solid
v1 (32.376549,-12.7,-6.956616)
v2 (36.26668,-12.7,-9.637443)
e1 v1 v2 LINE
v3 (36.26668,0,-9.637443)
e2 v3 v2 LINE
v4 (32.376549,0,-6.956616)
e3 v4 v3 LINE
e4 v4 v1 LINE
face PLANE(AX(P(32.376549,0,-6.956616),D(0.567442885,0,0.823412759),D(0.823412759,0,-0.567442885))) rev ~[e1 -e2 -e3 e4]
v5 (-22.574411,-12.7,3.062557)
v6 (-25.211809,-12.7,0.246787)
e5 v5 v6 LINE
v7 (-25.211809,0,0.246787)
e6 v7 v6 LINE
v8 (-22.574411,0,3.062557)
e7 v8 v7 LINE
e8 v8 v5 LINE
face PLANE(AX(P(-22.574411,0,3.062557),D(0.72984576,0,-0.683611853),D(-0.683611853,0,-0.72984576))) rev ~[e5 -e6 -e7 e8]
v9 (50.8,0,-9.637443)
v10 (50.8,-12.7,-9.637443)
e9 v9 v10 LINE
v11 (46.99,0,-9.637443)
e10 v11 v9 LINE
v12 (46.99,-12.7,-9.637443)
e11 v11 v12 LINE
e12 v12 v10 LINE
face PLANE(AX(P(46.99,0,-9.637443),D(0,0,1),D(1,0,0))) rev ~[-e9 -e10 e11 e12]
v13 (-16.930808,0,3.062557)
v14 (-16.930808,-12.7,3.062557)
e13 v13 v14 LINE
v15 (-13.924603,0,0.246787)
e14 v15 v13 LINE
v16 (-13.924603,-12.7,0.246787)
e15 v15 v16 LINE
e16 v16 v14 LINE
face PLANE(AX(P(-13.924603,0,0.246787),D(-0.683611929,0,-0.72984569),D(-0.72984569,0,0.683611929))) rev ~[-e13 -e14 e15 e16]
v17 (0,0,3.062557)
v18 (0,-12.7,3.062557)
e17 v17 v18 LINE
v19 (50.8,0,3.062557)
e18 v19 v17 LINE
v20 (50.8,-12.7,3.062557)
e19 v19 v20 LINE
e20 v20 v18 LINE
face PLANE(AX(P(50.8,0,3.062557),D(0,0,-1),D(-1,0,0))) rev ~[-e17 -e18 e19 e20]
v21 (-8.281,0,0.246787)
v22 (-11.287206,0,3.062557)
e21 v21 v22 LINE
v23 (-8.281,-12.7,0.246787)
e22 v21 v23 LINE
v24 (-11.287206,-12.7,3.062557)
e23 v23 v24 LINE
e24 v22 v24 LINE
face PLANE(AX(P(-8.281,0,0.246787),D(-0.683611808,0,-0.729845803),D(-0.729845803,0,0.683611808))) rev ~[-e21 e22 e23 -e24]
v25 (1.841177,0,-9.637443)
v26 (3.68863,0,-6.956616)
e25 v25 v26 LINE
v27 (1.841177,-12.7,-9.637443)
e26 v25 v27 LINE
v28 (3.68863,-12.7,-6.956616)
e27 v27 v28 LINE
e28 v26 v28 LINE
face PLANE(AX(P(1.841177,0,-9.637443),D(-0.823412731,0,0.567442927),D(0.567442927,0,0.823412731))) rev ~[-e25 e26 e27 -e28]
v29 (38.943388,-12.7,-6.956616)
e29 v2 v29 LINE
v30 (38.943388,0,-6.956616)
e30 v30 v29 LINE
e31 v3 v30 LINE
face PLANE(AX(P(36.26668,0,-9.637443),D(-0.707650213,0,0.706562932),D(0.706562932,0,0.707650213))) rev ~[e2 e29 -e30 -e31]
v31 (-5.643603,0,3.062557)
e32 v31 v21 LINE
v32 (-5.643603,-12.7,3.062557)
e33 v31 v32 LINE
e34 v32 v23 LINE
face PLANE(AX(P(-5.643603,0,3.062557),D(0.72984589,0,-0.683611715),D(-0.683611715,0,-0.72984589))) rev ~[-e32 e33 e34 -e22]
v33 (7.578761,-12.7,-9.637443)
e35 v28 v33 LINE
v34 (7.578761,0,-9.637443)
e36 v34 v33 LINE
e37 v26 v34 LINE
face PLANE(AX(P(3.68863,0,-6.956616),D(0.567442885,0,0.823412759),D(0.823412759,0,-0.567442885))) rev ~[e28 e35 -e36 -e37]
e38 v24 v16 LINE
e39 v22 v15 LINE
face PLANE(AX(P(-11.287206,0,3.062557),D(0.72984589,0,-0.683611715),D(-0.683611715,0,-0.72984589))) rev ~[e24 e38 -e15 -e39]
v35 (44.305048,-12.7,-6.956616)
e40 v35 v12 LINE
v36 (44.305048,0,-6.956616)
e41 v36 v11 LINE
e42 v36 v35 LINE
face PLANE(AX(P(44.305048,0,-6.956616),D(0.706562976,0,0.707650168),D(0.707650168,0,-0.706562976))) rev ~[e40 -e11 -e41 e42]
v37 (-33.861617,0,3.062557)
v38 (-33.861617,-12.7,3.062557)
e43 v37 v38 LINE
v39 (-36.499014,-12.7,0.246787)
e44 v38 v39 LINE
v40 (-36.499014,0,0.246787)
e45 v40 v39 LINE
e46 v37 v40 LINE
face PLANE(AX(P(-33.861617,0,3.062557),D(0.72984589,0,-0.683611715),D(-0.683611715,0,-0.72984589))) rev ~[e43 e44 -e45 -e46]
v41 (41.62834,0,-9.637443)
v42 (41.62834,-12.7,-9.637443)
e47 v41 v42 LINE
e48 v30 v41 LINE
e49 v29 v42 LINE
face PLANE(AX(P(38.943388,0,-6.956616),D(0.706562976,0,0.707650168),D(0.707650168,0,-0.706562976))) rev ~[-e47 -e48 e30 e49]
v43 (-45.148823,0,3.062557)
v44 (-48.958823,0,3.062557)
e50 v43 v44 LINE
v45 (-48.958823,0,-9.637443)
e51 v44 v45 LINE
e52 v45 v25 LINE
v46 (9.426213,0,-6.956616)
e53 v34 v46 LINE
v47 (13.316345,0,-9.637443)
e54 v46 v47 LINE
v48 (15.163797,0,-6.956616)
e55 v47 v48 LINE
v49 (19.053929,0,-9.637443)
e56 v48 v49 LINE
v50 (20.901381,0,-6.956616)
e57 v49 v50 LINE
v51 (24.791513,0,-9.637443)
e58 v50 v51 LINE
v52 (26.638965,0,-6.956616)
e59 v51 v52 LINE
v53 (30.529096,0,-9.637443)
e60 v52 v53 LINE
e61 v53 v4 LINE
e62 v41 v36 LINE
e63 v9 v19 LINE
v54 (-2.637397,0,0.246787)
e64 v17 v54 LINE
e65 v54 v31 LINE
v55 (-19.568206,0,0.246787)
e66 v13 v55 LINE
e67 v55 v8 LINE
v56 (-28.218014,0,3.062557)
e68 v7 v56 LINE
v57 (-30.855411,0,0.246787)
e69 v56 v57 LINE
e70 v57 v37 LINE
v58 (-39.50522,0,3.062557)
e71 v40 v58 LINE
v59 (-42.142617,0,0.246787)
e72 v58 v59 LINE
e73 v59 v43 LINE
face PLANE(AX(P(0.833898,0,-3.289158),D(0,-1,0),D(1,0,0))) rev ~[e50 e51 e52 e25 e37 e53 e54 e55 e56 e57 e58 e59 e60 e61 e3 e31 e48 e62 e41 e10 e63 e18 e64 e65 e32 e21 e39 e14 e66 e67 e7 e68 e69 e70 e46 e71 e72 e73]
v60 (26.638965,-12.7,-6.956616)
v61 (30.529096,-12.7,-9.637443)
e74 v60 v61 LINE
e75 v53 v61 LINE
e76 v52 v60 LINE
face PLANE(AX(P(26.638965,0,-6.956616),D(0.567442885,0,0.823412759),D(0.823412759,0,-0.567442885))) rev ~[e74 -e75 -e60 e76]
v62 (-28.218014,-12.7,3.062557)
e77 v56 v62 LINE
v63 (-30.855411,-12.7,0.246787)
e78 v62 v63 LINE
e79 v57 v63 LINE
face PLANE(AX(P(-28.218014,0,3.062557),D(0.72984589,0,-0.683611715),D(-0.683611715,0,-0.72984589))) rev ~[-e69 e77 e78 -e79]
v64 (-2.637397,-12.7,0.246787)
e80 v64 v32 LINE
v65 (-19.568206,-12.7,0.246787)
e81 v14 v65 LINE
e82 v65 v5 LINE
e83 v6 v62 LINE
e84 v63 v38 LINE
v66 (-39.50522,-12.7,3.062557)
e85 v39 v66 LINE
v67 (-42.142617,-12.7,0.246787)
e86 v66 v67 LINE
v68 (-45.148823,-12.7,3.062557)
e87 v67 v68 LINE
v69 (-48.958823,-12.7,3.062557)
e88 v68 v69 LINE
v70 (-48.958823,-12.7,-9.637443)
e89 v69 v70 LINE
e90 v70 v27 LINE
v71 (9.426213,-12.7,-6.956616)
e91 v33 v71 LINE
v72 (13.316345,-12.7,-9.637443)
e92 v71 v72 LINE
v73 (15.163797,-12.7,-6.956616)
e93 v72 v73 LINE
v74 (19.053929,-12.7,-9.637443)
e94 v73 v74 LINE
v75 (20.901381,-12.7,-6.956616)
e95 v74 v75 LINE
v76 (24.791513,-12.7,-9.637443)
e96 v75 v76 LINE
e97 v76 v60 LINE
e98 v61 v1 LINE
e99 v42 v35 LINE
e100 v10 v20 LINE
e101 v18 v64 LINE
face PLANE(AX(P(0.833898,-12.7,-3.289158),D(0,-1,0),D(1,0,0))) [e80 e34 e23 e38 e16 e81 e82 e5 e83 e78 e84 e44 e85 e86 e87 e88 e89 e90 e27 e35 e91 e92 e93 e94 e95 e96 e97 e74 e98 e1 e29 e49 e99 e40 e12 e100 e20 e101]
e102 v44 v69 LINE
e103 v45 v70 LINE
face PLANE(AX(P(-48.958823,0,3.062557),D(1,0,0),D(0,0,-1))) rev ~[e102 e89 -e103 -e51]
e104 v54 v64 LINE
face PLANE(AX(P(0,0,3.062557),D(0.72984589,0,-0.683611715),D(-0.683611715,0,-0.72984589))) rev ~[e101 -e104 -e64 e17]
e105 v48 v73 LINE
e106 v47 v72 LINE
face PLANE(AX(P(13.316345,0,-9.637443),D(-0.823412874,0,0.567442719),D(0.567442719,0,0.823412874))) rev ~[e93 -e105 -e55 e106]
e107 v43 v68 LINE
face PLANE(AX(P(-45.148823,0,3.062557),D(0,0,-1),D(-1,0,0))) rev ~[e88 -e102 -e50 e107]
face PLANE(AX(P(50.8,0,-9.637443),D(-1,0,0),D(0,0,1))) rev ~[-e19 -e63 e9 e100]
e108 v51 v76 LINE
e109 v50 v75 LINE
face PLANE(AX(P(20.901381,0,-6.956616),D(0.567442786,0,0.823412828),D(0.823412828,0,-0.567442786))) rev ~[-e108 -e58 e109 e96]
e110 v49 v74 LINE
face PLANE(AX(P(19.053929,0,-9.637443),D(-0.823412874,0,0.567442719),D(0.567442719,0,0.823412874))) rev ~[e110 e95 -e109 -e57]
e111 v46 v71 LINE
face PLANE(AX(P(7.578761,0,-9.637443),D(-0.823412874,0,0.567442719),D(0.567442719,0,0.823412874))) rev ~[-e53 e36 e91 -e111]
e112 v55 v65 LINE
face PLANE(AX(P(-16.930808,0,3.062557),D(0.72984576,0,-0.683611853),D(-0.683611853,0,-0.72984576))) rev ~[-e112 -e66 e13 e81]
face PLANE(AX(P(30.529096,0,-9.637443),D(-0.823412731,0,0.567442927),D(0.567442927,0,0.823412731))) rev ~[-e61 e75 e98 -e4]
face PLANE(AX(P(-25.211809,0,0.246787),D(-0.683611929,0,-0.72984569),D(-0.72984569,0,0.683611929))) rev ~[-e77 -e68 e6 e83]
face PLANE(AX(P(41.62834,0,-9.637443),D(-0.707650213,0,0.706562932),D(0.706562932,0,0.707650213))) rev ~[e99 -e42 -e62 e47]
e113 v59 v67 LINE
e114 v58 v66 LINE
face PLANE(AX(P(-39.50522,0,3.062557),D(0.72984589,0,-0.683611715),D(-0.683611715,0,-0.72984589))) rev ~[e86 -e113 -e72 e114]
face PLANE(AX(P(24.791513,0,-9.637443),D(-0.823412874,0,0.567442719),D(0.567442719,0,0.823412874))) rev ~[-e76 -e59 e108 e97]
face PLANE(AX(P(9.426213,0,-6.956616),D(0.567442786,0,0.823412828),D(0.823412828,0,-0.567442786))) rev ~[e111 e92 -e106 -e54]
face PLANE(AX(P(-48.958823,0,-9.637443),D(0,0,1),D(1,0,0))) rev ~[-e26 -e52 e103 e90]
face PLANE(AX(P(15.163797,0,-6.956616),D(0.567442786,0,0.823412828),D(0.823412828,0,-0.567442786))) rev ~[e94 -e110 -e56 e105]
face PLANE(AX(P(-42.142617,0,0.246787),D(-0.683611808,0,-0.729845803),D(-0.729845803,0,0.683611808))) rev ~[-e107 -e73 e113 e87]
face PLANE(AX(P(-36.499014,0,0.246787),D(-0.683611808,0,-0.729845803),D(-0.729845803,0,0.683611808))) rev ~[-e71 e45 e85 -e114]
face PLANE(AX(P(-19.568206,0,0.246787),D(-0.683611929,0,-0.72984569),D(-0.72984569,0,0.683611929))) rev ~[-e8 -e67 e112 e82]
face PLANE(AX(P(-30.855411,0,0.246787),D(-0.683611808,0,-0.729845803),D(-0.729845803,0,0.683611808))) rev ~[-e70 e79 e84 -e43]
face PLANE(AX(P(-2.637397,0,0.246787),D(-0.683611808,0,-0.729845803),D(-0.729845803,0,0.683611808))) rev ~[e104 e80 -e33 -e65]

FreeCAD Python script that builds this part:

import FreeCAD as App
import Part
import Sketcher

V = App.Vector
Q = App.Units.Quantity

doc = App.newDocument("Part")
body = doc.addObject("PartDesign::Body", "Body")

# Sketch on XZ plane
sketch1 = body.newObject("Sketcher::SketchObject", "Sketch")
sketch1.AttachmentSupport = (doc.getObject("XZ_Plane"), [""])
sketch1.MapMode = "FlatFace"
sketch1.addGeometry(Part.LineSegment(V(50.8, 3.062557, 0), V(0, 3.062557, 0)), False)
sketch1.addGeometry(Part.LineSegment(V(0, 3.062557, 0), V(-2.637397, 0.246787, 0)), False)
sketch1.addGeometry(Part.LineSegment(V(-2.637397, 0.246787, 0), V(-5.643603, 3.062557, 0)), False)
sketch1.addGeometry(Part.LineSegment(V(-5.643603, 3.062557, 0), V(-8.281, 0.246787, 0)), False)
sketch1.addGeometry(Part.LineSegment(V(-8.281, 0.246787, 0), V(-11.287206, 3.062557, 0)), False)
sketch1.addGeometry(Part.LineSegment(V(-11.287206, 3.062557, 0), V(-13.924603, 0.246787, 0)), False)
sketch1.addGeometry(Part.LineSegment(V(-13.924603, 0.246787, 0), V(-16.930808, 3.062557, 0)), False)
sketch1.addGeometry(Part.LineSegment(V(-16.930808, 3.062557, 0), V(-19.568206, 0.246787, 0)), False)
sketch1.addGeometry(Part.LineSegment(V(-19.568206, 0.246787, 0), V(-22.574411, 3.062557, 0)), False)
sketch1.addGeometry(Part.LineSegment(V(-22.574411, 3.062557, 0), V(-25.211809, 0.246787, 0)), False)
sketch1.addGeometry(Part.LineSegment(V(-25.211809, 0.246787, 0), V(-28.218014, 3.062557, 0)), False)
sketch1.addGeometry(Part.LineSegment(V(-28.218014, 3.062557, 0), V(-30.855411, 0.246787, 0)), False)
sketch1.addGeometry(Part.LineSegment(V(-30.855411, 0.246787, 0), V(-33.861617, 3.062557, 0)), False)
sketch1.addGeometry(Part.LineSegment(V(-33.861617, 3.062557, 0), V(-36.499014, 0.246787, 0)), False)
sketch1.addGeometry(Part.LineSegment(V(-36.499014, 0.246787, 0), V(-39.50522, 3.062557, 0)), False)
sketch1.addGeometry(Part.LineSegment(V(-39.50522, 3.062557, 0), V(-42.142617, 0.246787, 0)), False)
sketch1.addGeometry(Part.LineSegment(V(-42.142617, 0.246787, 0), V(-45.148823, 3.062557, 0)), False)
sketch1.addGeometry(Part.LineSegment(V(-45.148823, 3.062557, 0), V(-48.958823, 3.062557, 0)), False)
sketch1.addGeometry(Part.LineSegment(V(-48.958823, 3.062557, 0), V(-48.958823, -9.637443, 0)), False)
sketch1.addGeometry(Part.LineSegment(V(-48.958823, -9.637443, 0), V(1.841177, -9.637443, 0)), False)
sketch1.addGeometry(Part.LineSegment(V(1.841177, -9.637443, 0), V(3.68863, -6.956616, 0)), False)
sketch1.addGeometry(Part.LineSegment(V(3.68863, -6.956616, 0), V(7.578761, -9.637443, 0)), False)
sketch1.addGeometry(Part.LineSegment(V(7.578761, -9.637443, 0), V(9.426213, -6.956616, 0)), False)
sketch1.addGeometry(Part.LineSegment(V(9.426213, -6.956616, 0), V(13.316345, -9.637443, 0)), False)
sketch1.addGeometry(Part.LineSegment(V(13.316345, -9.637443, 0), V(15.163797, -6.956616, 0)), False)
sketch1.addGeometry(Part.LineSegment(V(15.163797, -6.956616, 0), V(19.053929, -9.637443, 0)), False)
sketch1.addGeometry(Part.LineSegment(V(19.053929, -9.637443, 0), V(20.901381, -6.956616, 0)), False)
sketch1.addGeometry(Part.LineSegment(V(20.901381, -6.956616, 0), V(24.791513, -9.637443, 0)), False)
sketch1.addGeometry(Part.LineSegment(V(24.791513, -9.637443, 0), V(26.638965, -6.956616, 0)), False)
sketch1.addGeometry(Part.LineSegment(V(26.638965, -6.956616, 0), V(30.529096, -9.637443, 0)), False)
sketch1.addGeometry(Part.LineSegment(V(30.529096, -9.637443, 0), V(32.376549, -6.956616, 0)), False)
sketch1.addGeometry(Part.LineSegment(V(32.376549, -6.956616, 0), V(36.26668, -9.637443, 0)), False)
sketch1.addGeometry(Part.LineSegment(V(36.26668, -9.637443, 0), V(38.943388, -6.956616, 0)), False)
sketch1.addGeometry(Part.LineSegment(V(38.943388, -6.956616, 0), V(41.62834, -9.637443, 0)), False)
sketch1.addGeometry(Part.LineSegment(V(41.62834, -9.637443, 0), V(44.305048, -6.956616, 0)), False)
sketch1.addGeometry(Part.LineSegment(V(44.305048, -6.956616, 0), V(46.99, -9.637443, 0)), False)
sketch1.addGeometry(Part.LineSegment(V(46.99, -9.637443, 0), V(50.8, -9.637443, 0)), False)
sketch1.addGeometry(Part.LineSegment(V(50.8, -9.637443, 0), V(50.8, 3.062557, 0)), False)
sketch1.addConstraint(Sketcher.Constraint("Coincident", 0, 2, 1, 1))
sketch1.addConstraint(Sketcher.Constraint("Coincident", 1, 2, 2, 1))
sketch1.addConstraint(Sketcher.Constraint("Coincident", 2, 2, 3, 1))
sketch1.addConstraint(Sketcher.Constraint("Coincident", 3, 2, 4, 1))
sketch1.addConstraint(Sketcher.Constraint("Coincident", 4, 2, 5, 1))
sketch1.addConstraint(Sketcher.Constraint("Coincident", 5, 2, 6, 1))
sketch1.addConstraint(Sketcher.Constraint("Coincident", 6, 2, 7, 1))
sketch1.addConstraint(Sketcher.Constraint("Coincident", 7, 2, 8, 1))
sketch1.addConstraint(Sketcher.Constraint("Coincident", 8, 2, 9, 1))
sketch1.addConstraint(Sketcher.Constraint("Coincident", 9, 2, 10, 1))
sketch1.addConstraint(Sketcher.Constraint("Coincident", 10, 2, 11, 1))
sketch1.addConstraint(Sketcher.Constraint("Coincident", 11, 2, 12, 1))
sketch1.addConstraint(Sketcher.Constraint("Coincident", 12, 2, 13, 1))
sketch1.addConstraint(Sketcher.Constraint("Coincident", 13, 2, 14, 1))
sketch1.addConstraint(Sketcher.Constraint("Coincident", 14, 2, 15, 1))
sketch1.addConstraint(Sketcher.Constraint("Coincident", 15, 2, 16, 1))
sketch1.addConstraint(Sketcher.Constraint("Coincident", 16, 2, 17, 1))
sketch1.addConstraint(Sketcher.Constraint("Coincident", 17, 2, 18, 1))
sketch1.addConstraint(Sketcher.Constraint("Coincident", 18, 2, 19, 1))
sketch1.addConstraint(Sketcher.Constraint("Coincident", 19, 2, 20, 1))
sketch1.addConstraint(Sketcher.Constraint("Coincident", 20, 2, 21, 1))
sketch1.addConstraint(Sketcher.Constraint("Coincident", 21, 2, 22, 1))
sketch1.addConstraint(Sketcher.Constraint("Coincident", 22, 2, 23, 1))
sketch1.addConstraint(Sketcher.Constraint("Coincident", 23, 2, 24, 1))
sketch1.addConstraint(Sketcher.Constraint("Coincident", 24, 2, 25, 1))
sketch1.addConstraint(Sketcher.Constraint("Coincident", 25, 2, 26, 1))
sketch1.addConstraint(Sketcher.Constraint("Coincident", 26, 2, 27, 1))
sketch1.addConstraint(Sketcher.Constraint("Coincident", 27, 2, 28, 1))
sketch1.addConstraint(Sketcher.Constraint("Coincident", 28, 2, 29, 1))
sketch1.addConstraint(Sketcher.Constraint("Coincident", 29, 2, 30, 1))
sketch1.addConstraint(Sketcher.Constraint("Coincident", 30, 2, 31, 1))
sketch1.addConstraint(Sketcher.Constraint("Coincident", 31, 2, 32, 1))
sketch1.addConstraint(Sketcher.Constraint("Coincident", 32, 2, 33, 1))
sketch1.addConstraint(Sketcher.Constraint("Coincident", 33, 2, 34, 1))
sketch1.addConstraint(Sketcher.Constraint("Coincident", 34, 2, 35, 1))
sketch1.addConstraint(Sketcher.Constraint("Coincident", 35, 2, 36, 1))
sketch1.addConstraint(Sketcher.Constraint("Coincident", 36, 2, 37, 1))
sketch1.addConstraint(Sketcher.Constraint("Coincident", 37, 2, 0, 1))
sketch1.addConstraint(Sketcher.Constraint("Horizontal", 0))
sketch1.addConstraint(Sketcher.Constraint("Horizontal", 17))
sketch1.addConstraint(Sketcher.Constraint("Vertical", 18))
sketch1.addConstraint(Sketcher.Constraint("Horizontal", 19))
sketch1.addConstraint(Sketcher.Constraint("Horizontal", 36))
sketch1.addConstraint(Sketcher.Constraint("Vertical", 37))
sketch1.addConstraint(Sketcher.Constraint("PointOnObject", 0, 2, -2))
sketch1.addConstraint(Sketcher.Constraint("Perpendicular", 1, 2))
sketch1.addConstraint(Sketcher.Constraint("Perpendicular", 2, 3))
sketch1.addConstraint(Sketcher.Constraint("Perpendicular", 3, 4))
sketch1.addConstraint(Sketcher.Constraint("Perpendicular", 4, 5))
sketch1.addConstraint(Sketcher.Constraint("Perpendicular", 5, 6))
sketch1.addConstraint(Sketcher.Constraint("Perpendicular", 6, 7))
sketch1.addConstraint(Sketcher.Constraint("Perpendicular", 7, 8))
sketch1.addConstraint(Sketcher.Constraint("Perpendicular", 8, 9))
sketch1.addConstraint(Sketcher.Constraint("Perpendicular", 9, 10))
sketch1.addConstraint(Sketcher.Constraint("Perpendicular", 10, 11))
sketch1.addConstraint(Sketcher.Constraint("Perpendicular", 11, 12))
sketch1.addConstraint(Sketcher.Constraint("Perpendicular", 12, 13))
sketch1.addConstraint(Sketcher.Constraint("Perpendicular", 13, 14))
sketch1.addConstraint(Sketcher.Constraint("Perpendicular", 14, 15))
sketch1.addConstraint(Sketcher.Constraint("Perpendicular", 15, 16))
sketch1.addConstraint(Sketcher.Constraint("Perpendicular", 20, 21))
sketch1.addConstraint(Sketcher.Constraint("Perpendicular", 21, 22))
sketch1.addConstraint(Sketcher.Constraint("Perpendicular", 22, 23))
sketch1.addConstraint(Sketcher.Constraint("Perpendicular", 23, 24))
sketch1.addConstraint(Sketcher.Constraint("Perpendicular", 24, 25))
sketch1.addConstraint(Sketcher.Constraint("Perpendicular", 25, 26))
sketch1.addConstraint(Sketcher.Constraint("Perpendicular", 26, 27))
sketch1.addConstraint(Sketcher.Constraint("Perpendicular", 27, 28))
sketch1.addConstraint(Sketcher.Constraint("Perpendicular", 28, 29))
sketch1.addConstraint(Sketcher.Constraint("Perpendicular", 29, 30))
sketch1.addConstraint(Sketcher.Constraint("Perpendicular", 30, 31))
sketch1.addConstraint(Sketcher.Constraint("Perpendicular", 32, 33))
sketch1.addConstraint(Sketcher.Constraint("Perpendicular", 33, 34))
sketch1.addConstraint(Sketcher.Constraint("Perpendicular", 34, 35))
sketch1.addConstraint(Sketcher.Constraint("Horizontal", 0, 2, 2, 2))
sketch1.addConstraint(Sketcher.Constraint("Horizontal", 1, 2, 3, 2))
sketch1.addConstraint(Sketcher.Constraint("Horizontal", 2, 2, 4, 2))
sketch1.addConstraint(Sketcher.Constraint("Horizontal", 3, 2, 5, 2))
sketch1.addConstraint(Sketcher.Constraint("Horizontal", 4, 2, 6, 2))
sketch1.addConstraint(Sketcher.Constraint("Horizontal", 5, 2, 7, 2))
sketch1.addConstraint(Sketcher.Constraint("Horizontal", 6, 2, 8, 2))
sketch1.addConstraint(Sketcher.Constraint("Horizontal", 7, 2, 9, 2))
sketch1.addConstraint(Sketcher.Constraint("Horizontal", 8, 2, 10, 2))
sketch1.addConstraint(Sketcher.Constraint("Horizontal", 9, 2, 11, 2))
sketch1.addConstraint(Sketcher.Constraint("Horizontal", 10, 2, 12, 2))
sketch1.addConstraint(Sketcher.Constraint("Horizontal", 11, 2, 13, 2))
sketch1.addConstraint(Sketcher.Constraint("Horizontal", 12, 2, 14, 2))
sketch1.addConstraint(Sketcher.Constraint("Horizontal", 13, 2, 15, 2))
sketch1.addConstraint(Sketcher.Constraint("Horizontal", 14, 2, 16, 2))
sketch1.addConstraint(Sketcher.Constraint("Horizontal", 19, 2, 21, 2))
sketch1.addConstraint(Sketcher.Constraint("Horizontal", 20, 2, 22, 2))
sketch1.addConstraint(Sketcher.Constraint("Horizontal", 21, 2, 23, 2))
sketch1.addConstraint(Sketcher.Constraint("Horizontal", 22, 2, 24, 2))
sketch1.addConstraint(Sketcher.Constraint("Horizontal", 23, 2, 25, 2))
sketch1.addConstraint(Sketcher.Constraint("Horizontal", 24, 2, 26, 2))
sketch1.addConstraint(Sketcher.Constraint("Horizontal", 25, 2, 27, 2))
sketch1.addConstraint(Sketcher.Constraint("Horizontal", 26, 2, 28, 2))
sketch1.addConstraint(Sketcher.Constraint("Horizontal", 27, 2, 29, 2))
sketch1.addConstraint(Sketcher.Constraint("Horizontal", 28, 2, 30, 2))
sketch1.addConstraint(Sketcher.Constraint("Horizontal", 29, 2, 31, 2))
sketch1.addConstraint(Sketcher.Constraint("Horizontal", 30, 2, 32, 2))
sketch1.addConstraint(Sketcher.Constraint("Horizontal", 31, 2, 33, 2))
sketch1.addConstraint(Sketcher.Constraint("Horizontal", 32, 2, 34, 2))
sketch1.addConstraint(Sketcher.Constraint("Horizontal", 33, 2, 35, 2))
sketch1.addConstraint(Sketcher.Constraint("Equal", 0, 19))
sketch1.addConstraint(Sketcher.Constraint("Equal", 17, 36))
sketch1.addConstraint(Sketcher.Constraint("DistanceX", 0, 2, 0, 1, Q("2 in")))
sketch1.addConstraint(Sketcher.Constraint("DistanceY", 18, 2, 18, 1, Q("0.5 in")))
sketch1.addConstraint(Sketcher.Constraint("DistanceX", 17, 2, 17, 1, Q("0.15 in")))
sketch1.addConstraint(Sketcher.Constraint("Distance", 21, Q("0.186 in")))
sketch1.addConstraint(Sketcher.Constraint("DistanceX", -1, 1, 24, 2, Q("0.5969999 in")))
sketch1.addConstraint(Sketcher.Constraint("DistanceX", 3, 2, -1, 1, Q("8.281 mm")))
sketch1.addConstraint(Sketcher.Constraint("DistanceX", 30, 2, 34, 2, Q("11.928499 mm")))
sketch1.addConstraint(Sketcher.Constraint("DistanceY", -1, 1, 0, 2, Q("3.062557 mm")))
pad1 = body.newObject("PartDesign::Pad", "Pad")
pad1.Profile = sketch1
pad1.Length = Q("0.5 in")

doc.recompute()
